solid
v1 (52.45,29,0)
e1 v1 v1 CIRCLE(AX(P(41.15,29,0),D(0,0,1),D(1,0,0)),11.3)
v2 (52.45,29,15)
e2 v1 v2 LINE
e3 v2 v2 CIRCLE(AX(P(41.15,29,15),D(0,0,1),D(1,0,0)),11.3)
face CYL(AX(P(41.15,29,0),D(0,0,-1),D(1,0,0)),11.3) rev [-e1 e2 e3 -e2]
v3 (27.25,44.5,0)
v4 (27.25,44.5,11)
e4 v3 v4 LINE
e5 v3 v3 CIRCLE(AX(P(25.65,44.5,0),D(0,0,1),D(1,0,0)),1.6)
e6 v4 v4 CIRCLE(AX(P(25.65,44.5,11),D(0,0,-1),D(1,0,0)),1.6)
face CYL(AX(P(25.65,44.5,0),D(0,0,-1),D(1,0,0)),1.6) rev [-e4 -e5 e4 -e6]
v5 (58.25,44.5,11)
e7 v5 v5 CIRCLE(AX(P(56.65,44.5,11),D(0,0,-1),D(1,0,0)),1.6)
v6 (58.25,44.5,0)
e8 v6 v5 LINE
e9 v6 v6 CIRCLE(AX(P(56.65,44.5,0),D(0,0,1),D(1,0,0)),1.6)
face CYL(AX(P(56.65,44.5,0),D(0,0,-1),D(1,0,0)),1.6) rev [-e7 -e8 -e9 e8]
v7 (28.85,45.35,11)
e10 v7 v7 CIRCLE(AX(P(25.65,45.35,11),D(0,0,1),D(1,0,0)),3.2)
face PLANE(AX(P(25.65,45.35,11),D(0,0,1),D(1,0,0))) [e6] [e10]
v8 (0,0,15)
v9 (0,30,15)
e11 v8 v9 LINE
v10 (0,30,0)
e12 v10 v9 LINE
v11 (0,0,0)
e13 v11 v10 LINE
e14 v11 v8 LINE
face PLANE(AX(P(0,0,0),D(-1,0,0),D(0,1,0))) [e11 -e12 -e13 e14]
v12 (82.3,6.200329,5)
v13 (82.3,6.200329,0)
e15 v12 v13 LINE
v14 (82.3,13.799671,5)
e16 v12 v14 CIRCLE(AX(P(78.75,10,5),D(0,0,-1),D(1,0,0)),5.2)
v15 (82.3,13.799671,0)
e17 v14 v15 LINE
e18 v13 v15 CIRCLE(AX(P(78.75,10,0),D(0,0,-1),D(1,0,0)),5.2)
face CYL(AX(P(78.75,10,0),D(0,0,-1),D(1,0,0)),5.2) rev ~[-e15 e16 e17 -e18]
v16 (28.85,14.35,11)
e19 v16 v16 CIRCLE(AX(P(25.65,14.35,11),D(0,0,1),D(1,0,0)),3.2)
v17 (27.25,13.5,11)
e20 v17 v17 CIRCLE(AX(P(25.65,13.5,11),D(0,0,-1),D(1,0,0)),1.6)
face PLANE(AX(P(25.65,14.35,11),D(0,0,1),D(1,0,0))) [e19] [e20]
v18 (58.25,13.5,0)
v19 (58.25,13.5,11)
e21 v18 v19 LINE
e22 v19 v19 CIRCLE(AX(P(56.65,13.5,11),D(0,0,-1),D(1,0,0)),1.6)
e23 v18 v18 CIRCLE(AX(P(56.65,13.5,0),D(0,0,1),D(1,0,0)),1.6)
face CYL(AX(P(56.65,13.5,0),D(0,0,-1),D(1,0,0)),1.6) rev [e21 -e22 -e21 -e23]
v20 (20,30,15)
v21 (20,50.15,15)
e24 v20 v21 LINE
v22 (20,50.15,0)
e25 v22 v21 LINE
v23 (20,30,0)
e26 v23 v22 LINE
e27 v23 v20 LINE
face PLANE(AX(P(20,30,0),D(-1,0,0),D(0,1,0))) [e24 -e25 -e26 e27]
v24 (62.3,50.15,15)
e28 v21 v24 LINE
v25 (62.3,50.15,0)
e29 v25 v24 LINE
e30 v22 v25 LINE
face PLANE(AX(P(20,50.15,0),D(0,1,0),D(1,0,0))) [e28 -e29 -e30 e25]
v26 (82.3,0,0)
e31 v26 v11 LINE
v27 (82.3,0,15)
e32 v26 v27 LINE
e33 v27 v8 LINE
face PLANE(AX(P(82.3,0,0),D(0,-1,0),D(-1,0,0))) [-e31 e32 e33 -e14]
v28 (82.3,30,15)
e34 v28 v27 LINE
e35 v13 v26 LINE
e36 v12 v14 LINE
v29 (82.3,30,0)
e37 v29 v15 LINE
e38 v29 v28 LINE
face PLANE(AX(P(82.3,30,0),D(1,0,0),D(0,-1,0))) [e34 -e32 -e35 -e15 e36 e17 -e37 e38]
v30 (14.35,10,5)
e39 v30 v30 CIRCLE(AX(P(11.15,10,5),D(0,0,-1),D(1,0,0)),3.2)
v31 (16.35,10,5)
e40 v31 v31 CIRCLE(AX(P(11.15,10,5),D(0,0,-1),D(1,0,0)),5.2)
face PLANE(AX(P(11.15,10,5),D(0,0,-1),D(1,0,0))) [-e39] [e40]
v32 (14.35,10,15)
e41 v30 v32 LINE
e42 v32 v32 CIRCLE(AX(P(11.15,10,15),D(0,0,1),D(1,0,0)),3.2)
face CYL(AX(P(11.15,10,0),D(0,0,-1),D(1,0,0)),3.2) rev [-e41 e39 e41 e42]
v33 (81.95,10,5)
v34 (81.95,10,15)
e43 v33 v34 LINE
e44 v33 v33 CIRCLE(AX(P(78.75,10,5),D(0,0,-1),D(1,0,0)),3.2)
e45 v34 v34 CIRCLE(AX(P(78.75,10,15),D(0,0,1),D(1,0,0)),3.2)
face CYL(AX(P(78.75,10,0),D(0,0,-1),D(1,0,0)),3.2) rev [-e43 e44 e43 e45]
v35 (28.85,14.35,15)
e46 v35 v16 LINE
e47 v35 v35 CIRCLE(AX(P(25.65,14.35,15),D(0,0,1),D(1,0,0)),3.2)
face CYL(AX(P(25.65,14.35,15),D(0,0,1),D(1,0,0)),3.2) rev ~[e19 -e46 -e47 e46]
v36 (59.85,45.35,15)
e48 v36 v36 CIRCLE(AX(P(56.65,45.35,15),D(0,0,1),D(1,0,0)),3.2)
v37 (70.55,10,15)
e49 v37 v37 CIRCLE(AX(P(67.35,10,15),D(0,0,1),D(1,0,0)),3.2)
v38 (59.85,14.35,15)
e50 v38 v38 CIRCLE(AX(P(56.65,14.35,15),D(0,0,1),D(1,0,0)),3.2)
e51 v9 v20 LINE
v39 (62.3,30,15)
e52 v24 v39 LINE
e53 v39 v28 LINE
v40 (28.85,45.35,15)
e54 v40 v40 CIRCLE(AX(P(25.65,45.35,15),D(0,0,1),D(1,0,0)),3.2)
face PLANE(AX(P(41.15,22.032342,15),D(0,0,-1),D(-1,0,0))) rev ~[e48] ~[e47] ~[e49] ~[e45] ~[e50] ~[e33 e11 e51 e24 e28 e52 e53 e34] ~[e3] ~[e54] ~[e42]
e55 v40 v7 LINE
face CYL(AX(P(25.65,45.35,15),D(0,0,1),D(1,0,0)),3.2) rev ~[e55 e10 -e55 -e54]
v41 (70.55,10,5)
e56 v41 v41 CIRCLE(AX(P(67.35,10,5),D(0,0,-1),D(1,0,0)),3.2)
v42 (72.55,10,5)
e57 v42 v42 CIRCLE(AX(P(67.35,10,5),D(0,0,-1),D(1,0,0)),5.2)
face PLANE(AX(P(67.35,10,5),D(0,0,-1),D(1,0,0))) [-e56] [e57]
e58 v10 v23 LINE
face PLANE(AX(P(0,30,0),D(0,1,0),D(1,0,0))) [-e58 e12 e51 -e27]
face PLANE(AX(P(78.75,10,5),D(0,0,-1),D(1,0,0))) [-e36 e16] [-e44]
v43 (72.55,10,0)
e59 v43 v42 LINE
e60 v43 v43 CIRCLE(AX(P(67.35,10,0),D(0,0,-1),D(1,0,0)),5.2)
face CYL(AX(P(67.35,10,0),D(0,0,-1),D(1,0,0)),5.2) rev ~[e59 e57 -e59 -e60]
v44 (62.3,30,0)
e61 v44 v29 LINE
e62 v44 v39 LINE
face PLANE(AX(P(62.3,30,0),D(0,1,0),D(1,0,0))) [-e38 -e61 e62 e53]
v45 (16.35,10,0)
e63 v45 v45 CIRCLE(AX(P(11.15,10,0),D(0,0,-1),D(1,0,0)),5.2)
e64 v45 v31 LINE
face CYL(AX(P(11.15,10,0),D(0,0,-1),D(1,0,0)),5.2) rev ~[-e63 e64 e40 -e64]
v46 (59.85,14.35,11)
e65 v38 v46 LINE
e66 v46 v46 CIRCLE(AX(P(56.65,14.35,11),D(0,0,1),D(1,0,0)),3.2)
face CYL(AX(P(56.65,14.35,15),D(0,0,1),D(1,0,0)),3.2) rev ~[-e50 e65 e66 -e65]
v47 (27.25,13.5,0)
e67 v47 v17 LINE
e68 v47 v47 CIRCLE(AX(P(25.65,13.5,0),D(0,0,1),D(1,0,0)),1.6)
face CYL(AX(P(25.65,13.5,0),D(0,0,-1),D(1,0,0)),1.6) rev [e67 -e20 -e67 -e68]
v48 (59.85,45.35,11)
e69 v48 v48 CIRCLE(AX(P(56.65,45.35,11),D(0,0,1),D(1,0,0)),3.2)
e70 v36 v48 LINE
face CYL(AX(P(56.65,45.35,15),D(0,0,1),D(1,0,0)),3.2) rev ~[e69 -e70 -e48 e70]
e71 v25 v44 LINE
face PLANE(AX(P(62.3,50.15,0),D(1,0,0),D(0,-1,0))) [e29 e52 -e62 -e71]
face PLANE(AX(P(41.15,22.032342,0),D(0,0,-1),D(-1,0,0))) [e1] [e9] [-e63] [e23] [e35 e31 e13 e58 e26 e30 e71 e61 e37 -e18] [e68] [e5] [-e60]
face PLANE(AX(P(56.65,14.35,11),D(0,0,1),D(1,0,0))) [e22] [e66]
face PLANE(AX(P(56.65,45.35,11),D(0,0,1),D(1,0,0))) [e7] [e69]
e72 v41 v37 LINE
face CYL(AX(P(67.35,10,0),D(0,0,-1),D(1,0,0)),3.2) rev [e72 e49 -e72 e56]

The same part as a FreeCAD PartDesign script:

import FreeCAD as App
import Part
import Sketcher
from FreeCAD import Vector
Q = App.Units.Quantity


def add_polygon(sketch, points):
    """Adds a closed chain of lines whose ends are joined by coincident constraints."""
    first, n = sketch.GeometryCount, len(points)
    for a, b in zip(points, points[1:] + points[:1]):
        sketch.addGeometry(Part.LineSegment(App.Vector(*a, 0), App.Vector(*b, 0)), False)
    for i in range(n):
        sketch.addConstraint(Sketcher.Constraint("Coincident", first + i, 2, first + (i + 1) % n, 1))

doc = App.newDocument("Part")
body = doc.addObject("PartDesign::Body", "Body")

# Sketch on XY plane
sketch1 = doc.addObject("Sketcher::SketchObject", "Sketch")
body.addObject(sketch1)
sketch1.AttachmentSupport = (doc.XY_Plane, [""])
sketch1.MapMode = "FlatFace"
add_polygon(sketch1, [(20, 50.1), (20, 30), (0, 30), (0, 0), (82.3, 0), (82.3, 30), (62.3, 30), (62.3, 50.1)])  # lines 0-7
sketch1.addGeometry(Part.Circle(Vector(78.8, 10, 0), Vector(0, 0, 1), 3.2), False)  # 8
sketch1.addGeometry(Part.Circle(Vector(67.3, 10, 0), Vector(0, 0, 1), 3.2), False)  # 9
sketch1.addGeometry(Part.Circle(Vector(56.6, 13.5, 0), Vector(0, 0, 1), 1.6), False)  # 10
sketch1.addGeometry(Part.Circle(Vector(11.2, 10, 0), Vector(0, 0, 1), 3.2), False)  # 11
sketch1.addGeometry(Part.Circle(Vector(25.6, 13.5, 0), Vector(0, 0, 1), 1.6), False)  # 12
sketch1.addGeometry(Part.Circle(Vector(56.6, 44.5, 0), Vector(0, 0, 1), 1.6), False)  # 13
sketch1.addGeometry(Part.Circle(Vector(41.1, 29, 0), Vector(0, 0, 1), 11.3), False)  # 14
sketch1.addGeometry(Part.Circle(Vector(25.6, 44.5, 0), Vector(0, 0, 1), 1.6), False)  # 15
sketch1.addConstraint([
    Sketcher.Constraint("Vertical", 0),
    Sketcher.Constraint("Horizontal", 1),
    Sketcher.Constraint("Vertical", 2),
    Sketcher.Constraint("Horizontal", 3),
    Sketcher.Constraint("Vertical", 4),
    Sketcher.Constraint("Horizontal", 5),
    Sketcher.Constraint("Vertical", 6),
    Sketcher.Constraint("Horizontal", 7),
    Sketcher.Constraint("Coincident", 2, 2, -1, 1),
    Sketcher.Constraint("Equal", 8, 9),
    Sketcher.Constraint("Equal", 9, 11),
    Sketcher.Constraint("Equal", 10, 12),
    Sketcher.Constraint("Equal", 12, 13),
    Sketcher.Constraint("Equal", 13, 15),
    Sketcher.Constraint("Horizontal", 8, 3, 9, 3),
    Sketcher.Constraint("Horizontal", 9, 3, 11, 3),
    Sketcher.Constraint("Horizontal", 10, 3, 12, 3),
    Sketcher.Constraint("Horizontal", 13, 3, 15, 3),
    Sketcher.Constraint("Horizontal", 1, 2, 4, 2),
    Sketcher.Constraint("Vertical", 10, 3, 13, 3),
    Sketcher.Constraint("Vertical", 12, 3, 15, 3),
    Sketcher.Constraint("Equal", 1, 5),
    Sketcher.Constraint("Diameter", 8, Q("6.4 mm")),
    Sketcher.Constraint("Diameter", 10, Q("3.2 mm")),
    Sketcher.Constraint("Diameter", 14, Q("22.6 mm")),
    Sketcher.Constraint("DistanceX", 1, 2, 1, 1, Q("20 mm")),
    Sketcher.Constraint("DistanceY", 2, 2, 2, 1, Q("30 mm")),
    Sketcher.Constraint("DistanceX", 3, 1, 3, 2, Q("82.3 mm")),
    Sketcher.Constraint("DistanceY", -1, 1, 8, 3, Q("10 mm")),
    Sketcher.Constraint("DistanceY", -1, 1, 14, 3, Q("29 mm")),
    Sketcher.Constraint("DistanceX", 12, 3, 10, 3, Q("31 mm")),
    Sketcher.Constraint("DistanceY", 10, 3, 13, 3, Q("31 mm")),
    Sketcher.Constraint("DistanceX", 11, 3, 14, 3, Q("30 mm")),
    Sketcher.Constraint("DistanceY", 0, 2, 0, 1, Q("20.15 mm")),
    Sketcher.Constraint("DistanceY", -1, 1, 10, 3, Q("13.5 mm")),
    Sketcher.Constraint("DistanceX", 9, 3, 8, 3, Q("11.4 mm")),
    Sketcher.Constraint("DistanceX", 10, 3, 9, 3, Q("10.7 mm")),
    Sketcher.Constraint("DistanceX", 11, 3, 10, 3, Q("45.5 mm")),
    Sketcher.Constraint("DistanceX", -1, 1, 8, 3, Q("78.75 mm")),
])
pad1 = doc.addObject("PartDesign::Pad", "Pad")
body.addObject(pad1)
pad1.Profile = sketch1
pad1.Length = 15

# Sketch on XY plane
sketch2 = doc.addObject("Sketcher::SketchObject", "Sketch001")
body.addObject(sketch2)
sketch2.AttachmentSupport = (doc.XY_Plane, [""])
sketch2.MapMode = "FlatFace"
sketch2.AttachmentOffset = App.Placement(Vector(0, 0, 15), App.Rotation())
sketch2.addGeometry([
    Part.Circle(Vector(25.6, 45.4, 0), Vector(0, 0, 1), 3.2),
    Part.Circle(Vector(56.6, 45.4, 0), Vector(0, 0, 1), 3.2),
    Part.Circle(Vector(56.6, 14.3, 0), Vector(0, 0, 1), 3.2),
    Part.Circle(Vector(25.6, 14.3, 0), Vector(0, 0, 1), 3.2),
], False)
sketch2.addConstraint([
    Sketcher.Constraint("Equal", 0, 1),
    Sketcher.Constraint("Equal", 1, 2),
    Sketcher.Constraint("Equal", 2, 3),
    Sketcher.Constraint("Horizontal", 0, 3, 1, 3),
    Sketcher.Constraint("Horizontal", 2, 3, 3, 3),
    Sketcher.Constraint("Vertical", 1, 3, 2, 3),
    Sketcher.Constraint("Vertical", 0, 3, 3, 3),
    Sketcher.Constraint("Diameter", 0, Q("6.4 mm")),
    Sketcher.Constraint("DistanceX", 0, 3, 1, 3, Q("31 mm")),
    Sketcher.Constraint("DistanceY", 2, 3, 1, 3, Q("31 mm")),
    Sketcher.Constraint("DistanceX", -1, 1, 0, 3, Q("25.65 mm")),
    Sketcher.Constraint("DistanceY", -1, 1, 0, 3, Q("45.35 mm")),
])
pocket1 = doc.addObject("PartDesign::Pocket", "Pocket")
body.addObject(pocket1)
pocket1.Profile = sketch2
pocket1.Length = 4

# Sketch on XY plane
sketch3 = doc.addObject("Sketcher::SketchObject", "Sketch002")
body.addObject(sketch3)
sketch3.AttachmentSupport = (doc.XY_Plane, [""])
sketch3.MapMode = "FlatFace"
sketch3.addGeometry([
    Part.Circle(Vector(11, 10, 0), Vector(0, 0, 1), 5),
    Part.Circle(Vector(67, 10, 0), Vector(0, 0, 1), 5),
    Part.Circle(Vector(79, 10, 0), Vector(0, 0, 1), 5),
], False)
sketch3.addConstraint([
    Sketcher.Constraint("Equal", 0, 1),
    Sketcher.Constraint("Equal", 1, 2),
    Sketcher.Constraint("Horizontal", 0, 3, 1, 3),
    Sketcher.Constraint("Horizontal", 1, 3, 2, 3),
    Sketcher.Constraint("Diameter", 0, Q("10.4 mm")),
    Sketcher.Constraint("DistanceY", -1, 1, 0, 3, Q("10 mm")),
    Sketcher.Constraint("DistanceX", 0, 3, 1, 3, Q("56.2 mm")),
    Sketcher.Constraint("DistanceX", 1, 3, 2, 3, Q("11.4 mm")),
    Sketcher.Constraint("DistanceX", -1, 1, 0, 3, Q("11.15 mm")),
])
pocket2 = doc.addObject("PartDesign::Pocket", "Pocket001")
body.addObject(pocket2)
pocket2.Profile = sketch3
pocket2.Length = 5
pocket2.Reversed = True

doc.recompute()
